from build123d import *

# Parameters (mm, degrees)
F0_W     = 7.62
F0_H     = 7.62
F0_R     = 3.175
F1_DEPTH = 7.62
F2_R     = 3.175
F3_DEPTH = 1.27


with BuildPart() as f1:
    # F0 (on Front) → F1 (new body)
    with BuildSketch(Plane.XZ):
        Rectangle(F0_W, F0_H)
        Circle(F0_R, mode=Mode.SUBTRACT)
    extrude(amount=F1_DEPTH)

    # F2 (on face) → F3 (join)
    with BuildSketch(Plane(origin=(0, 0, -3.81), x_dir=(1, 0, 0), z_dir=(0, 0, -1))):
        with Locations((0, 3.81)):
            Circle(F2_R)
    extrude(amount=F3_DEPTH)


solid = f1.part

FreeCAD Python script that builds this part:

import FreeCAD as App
import Part
import Sketcher

V = App.Vector
Q = App.Units.Quantity


def add_polygon(sketch, points):
    """Adds a closed chain of lines whose ends are joined by coincident constraints."""
    first, n = sketch.GeometryCount, len(points)
    for a, b in zip(points, points[1:] + points[:1]):
        sketch.addGeometry(Part.LineSegment(App.Vector(*a, 0), App.Vector(*b, 0)), False)
    for i in range(n):
        sketch.addConstraint(Sketcher.Constraint("Coincident", first + i, 2, first + (i + 1) % n, 1))

doc = App.newDocument("Part")
params = doc.addObject("Spreadsheet::Sheet", "Params")
for row, (alias, value) in enumerate([
    ("sketch1_diameter", "0.25 in"),
    ("sketch1_width", "0.3 in"),
    ("pad1_length", "0.3 in"),
    ("sketch2_diameter", "0.25 in"),
    ("pad2_length", "0.05 in"),
], start=1):
    params.set(f"A{row}", alias)
    params.set(f"B{row}", "=" + value)
    params.setAlias(f"B{row}", alias)

body = doc.addObject("PartDesign::Body", "Body")

# Sketch on XZ plane
sketch1 = body.newObject("Sketcher::SketchObject", "Sketch")
sketch1.AttachmentSupport = (doc.getObject("XZ_Plane"), [""])
sketch1.MapMode = "FlatFace"
add_polygon(sketch1, [(-3.8, 3.8), (-3.8, -3.8), (3.8, -3.8), (3.8, 3.8)])  # lines 0-3
sketch1.addGeometry(Part.Circle(V(0, 0, 0), V(0, 0, 1), 3.2), False)  # 4
sketch1.addConstraint(Sketcher.Constraint("Vertical", 0))
sketch1.addConstraint(Sketcher.Constraint("Horizontal", 1))
sketch1.addConstraint(Sketcher.Constraint("Vertical", 2))
sketch1.addConstraint(Sketcher.Constraint("Horizontal", 3))
sketch1.addConstraint(Sketcher.Constraint("Coincident", 4, 3, -1, 1))
sketch1.addConstraint(Sketcher.Constraint("Symmetric", 0, 2, 2, 2, -1, 1))
sketch1.addConstraint(Sketcher.Constraint("Equal", 3, 0))
sketch1.addConstraint(Sketcher.Constraint("Diameter", 4, Q("0.25 in")))
sketch1.addConstraint(Sketcher.Constraint("DistanceX", 1, 1, 1, 2, Q("0.3 in")))
sketch1.setExpression("Constraints[11]", "Params.sketch1_diameter")
sketch1.setExpression("Constraints[12]", "Params.sketch1_width")
pad1 = body.newObject("PartDesign::Pad", "Pad")
pad1.Profile = sketch1
pad1.setExpression("Length", "Params.pad1_length")

# Sketch on XY plane
sketch2 = body.newObject("Sketcher::SketchObject", "Sketch001")
sketch2.AttachmentSupport = (doc.getObject("XY_Plane"), [""])
sketch2.MapMode = "FlatFace"
sketch2.AttachmentOffset = App.Placement(V(0, 0, -0.15 * 25.4), App.Rotation())
sketch2.addGeometry(Part.Circle(V(0, -3.8, 0), V(0, 0, 1), 3.2), False)
sketch2.addConstraint(Sketcher.Constraint("PointOnObject", 0, 3, -2))
sketch2.addConstraint(Sketcher.Constraint("Diameter", 0, Q("0.25 in")))
sketch2.addConstraint(Sketcher.Constraint("DistanceY", 0, 3, -1, 1, Q("0.15 in")))
sketch2.setExpression("Constraints[1]", "Params.sketch2_diameter")
pad2 = body.newObject("PartDesign::Pad", "Pad001")
pad2.Profile = sketch2
pad2.setExpression("Length", "Params.pad2_length")
pad2.Reversed = True

doc.recompute()
